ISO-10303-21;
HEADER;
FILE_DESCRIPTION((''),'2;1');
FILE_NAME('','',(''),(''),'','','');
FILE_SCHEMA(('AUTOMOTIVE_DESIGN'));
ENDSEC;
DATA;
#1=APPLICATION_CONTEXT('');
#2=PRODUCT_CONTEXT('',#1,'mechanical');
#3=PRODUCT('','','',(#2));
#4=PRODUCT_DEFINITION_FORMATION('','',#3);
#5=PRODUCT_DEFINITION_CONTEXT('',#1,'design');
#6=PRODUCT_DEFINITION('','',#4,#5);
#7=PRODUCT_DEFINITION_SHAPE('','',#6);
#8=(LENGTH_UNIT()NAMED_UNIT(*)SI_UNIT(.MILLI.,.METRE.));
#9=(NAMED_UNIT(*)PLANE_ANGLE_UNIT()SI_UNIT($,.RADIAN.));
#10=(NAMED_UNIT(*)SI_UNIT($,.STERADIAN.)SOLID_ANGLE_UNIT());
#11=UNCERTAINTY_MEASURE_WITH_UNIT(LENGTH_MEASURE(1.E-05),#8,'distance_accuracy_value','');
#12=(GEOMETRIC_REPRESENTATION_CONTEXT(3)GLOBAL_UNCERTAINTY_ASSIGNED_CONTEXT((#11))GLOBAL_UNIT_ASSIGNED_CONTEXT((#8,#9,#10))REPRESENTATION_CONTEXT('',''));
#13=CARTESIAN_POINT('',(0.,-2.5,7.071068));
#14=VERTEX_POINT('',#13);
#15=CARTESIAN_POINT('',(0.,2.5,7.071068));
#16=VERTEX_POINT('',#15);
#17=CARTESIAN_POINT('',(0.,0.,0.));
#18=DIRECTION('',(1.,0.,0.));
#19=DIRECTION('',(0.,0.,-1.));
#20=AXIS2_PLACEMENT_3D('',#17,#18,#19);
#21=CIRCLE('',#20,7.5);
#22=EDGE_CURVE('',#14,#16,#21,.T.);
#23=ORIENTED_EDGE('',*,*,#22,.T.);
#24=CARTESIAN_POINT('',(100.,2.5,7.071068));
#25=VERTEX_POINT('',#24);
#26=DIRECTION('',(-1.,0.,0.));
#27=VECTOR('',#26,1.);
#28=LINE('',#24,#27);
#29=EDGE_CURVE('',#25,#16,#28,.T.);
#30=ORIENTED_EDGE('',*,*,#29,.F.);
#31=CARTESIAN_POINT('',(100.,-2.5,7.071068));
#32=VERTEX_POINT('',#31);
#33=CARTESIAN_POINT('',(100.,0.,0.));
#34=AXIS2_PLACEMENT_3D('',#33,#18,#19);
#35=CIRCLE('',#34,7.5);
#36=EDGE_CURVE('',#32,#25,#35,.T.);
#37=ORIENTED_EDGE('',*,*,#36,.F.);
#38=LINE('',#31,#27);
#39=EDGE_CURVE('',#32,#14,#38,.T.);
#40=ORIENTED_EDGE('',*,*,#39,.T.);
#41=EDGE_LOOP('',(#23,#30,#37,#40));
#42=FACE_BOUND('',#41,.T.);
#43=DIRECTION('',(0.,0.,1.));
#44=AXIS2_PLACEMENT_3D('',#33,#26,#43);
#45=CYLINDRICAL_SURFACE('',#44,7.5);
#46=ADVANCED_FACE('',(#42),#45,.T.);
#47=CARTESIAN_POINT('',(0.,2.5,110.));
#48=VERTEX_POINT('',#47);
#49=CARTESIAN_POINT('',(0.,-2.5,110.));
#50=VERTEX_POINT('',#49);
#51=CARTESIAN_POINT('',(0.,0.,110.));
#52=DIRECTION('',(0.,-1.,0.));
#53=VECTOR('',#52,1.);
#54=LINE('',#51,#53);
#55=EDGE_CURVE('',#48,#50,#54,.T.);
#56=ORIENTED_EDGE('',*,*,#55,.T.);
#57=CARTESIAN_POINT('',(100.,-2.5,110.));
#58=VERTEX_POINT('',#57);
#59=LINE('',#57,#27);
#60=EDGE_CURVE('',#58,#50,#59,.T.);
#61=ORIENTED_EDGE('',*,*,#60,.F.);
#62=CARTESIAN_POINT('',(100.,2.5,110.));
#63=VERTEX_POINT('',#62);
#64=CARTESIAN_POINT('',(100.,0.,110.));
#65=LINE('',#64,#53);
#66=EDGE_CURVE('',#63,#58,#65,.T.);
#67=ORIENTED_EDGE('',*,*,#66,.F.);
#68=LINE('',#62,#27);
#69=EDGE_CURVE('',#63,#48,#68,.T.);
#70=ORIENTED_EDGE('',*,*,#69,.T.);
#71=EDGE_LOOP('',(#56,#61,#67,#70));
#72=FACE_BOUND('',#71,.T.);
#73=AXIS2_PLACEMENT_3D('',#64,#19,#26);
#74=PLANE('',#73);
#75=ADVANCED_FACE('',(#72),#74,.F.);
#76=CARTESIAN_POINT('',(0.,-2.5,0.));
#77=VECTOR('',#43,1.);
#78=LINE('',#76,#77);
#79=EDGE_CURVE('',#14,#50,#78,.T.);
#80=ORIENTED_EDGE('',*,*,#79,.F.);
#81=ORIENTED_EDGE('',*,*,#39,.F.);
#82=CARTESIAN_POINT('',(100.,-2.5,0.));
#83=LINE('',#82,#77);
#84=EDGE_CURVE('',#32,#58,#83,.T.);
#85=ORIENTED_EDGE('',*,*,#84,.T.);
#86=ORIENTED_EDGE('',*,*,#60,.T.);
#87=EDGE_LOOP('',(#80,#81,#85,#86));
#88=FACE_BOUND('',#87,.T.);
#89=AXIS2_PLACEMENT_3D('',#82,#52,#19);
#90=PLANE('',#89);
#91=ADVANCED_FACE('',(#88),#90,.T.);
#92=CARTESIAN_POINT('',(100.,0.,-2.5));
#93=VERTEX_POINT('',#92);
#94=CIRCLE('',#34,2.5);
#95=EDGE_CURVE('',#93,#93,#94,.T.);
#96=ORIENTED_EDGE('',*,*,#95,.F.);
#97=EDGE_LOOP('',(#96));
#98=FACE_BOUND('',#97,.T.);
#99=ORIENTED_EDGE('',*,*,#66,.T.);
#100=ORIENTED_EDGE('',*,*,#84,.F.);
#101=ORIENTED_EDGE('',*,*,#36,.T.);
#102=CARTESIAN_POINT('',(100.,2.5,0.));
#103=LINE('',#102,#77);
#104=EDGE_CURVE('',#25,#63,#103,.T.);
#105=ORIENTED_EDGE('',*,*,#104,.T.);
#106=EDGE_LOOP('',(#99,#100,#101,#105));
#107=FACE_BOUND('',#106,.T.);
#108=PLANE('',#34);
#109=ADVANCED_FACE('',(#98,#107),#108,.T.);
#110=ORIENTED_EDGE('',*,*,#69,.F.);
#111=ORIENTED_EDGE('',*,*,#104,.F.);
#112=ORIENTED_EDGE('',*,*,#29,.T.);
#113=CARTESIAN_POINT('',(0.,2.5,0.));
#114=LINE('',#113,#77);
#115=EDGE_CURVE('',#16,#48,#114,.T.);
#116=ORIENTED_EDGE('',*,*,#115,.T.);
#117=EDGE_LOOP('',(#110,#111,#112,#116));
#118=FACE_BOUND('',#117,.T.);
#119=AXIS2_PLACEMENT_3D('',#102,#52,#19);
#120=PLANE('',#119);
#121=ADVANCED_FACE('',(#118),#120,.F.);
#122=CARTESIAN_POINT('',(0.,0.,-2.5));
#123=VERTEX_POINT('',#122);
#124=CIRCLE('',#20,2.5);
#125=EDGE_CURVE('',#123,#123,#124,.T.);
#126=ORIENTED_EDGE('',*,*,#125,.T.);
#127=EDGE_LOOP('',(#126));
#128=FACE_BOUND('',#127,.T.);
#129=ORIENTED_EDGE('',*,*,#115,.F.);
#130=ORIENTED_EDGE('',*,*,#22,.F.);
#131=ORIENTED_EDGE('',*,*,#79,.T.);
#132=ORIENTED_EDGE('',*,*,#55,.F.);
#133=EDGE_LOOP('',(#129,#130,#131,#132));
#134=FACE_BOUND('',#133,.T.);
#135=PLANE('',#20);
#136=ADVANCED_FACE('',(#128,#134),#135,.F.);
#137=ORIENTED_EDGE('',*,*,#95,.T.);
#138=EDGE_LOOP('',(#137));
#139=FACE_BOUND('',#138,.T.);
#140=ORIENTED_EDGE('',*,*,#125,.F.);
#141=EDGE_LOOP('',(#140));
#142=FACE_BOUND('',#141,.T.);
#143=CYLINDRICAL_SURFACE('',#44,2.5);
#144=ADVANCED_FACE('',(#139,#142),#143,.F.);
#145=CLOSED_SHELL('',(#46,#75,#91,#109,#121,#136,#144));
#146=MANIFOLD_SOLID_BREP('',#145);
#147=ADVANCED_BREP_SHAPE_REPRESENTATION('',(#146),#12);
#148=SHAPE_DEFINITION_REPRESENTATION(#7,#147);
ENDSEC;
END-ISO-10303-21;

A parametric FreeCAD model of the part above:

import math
import FreeCAD as App
import Part
import Sketcher
from FreeCAD import Vector

doc = App.newDocument("Part")
body = doc.addObject("PartDesign::Body", "Body")

sketch1 = body.newObject("Sketcher::SketchObject", "Sketch")
sketch1.AttachmentSupport = (doc.getObject("YZ_Plane"), [""])
sketch1.MapMode = "FlatFace"
sketch1.addGeometry([
    Part.ArcOfCircle(Part.Circle(Vector(0, 0, 0), Vector(0, 0, 1), 7.5), math.radians(109), math.radians(270)),
    Part.ArcOfCircle(Part.Circle(Vector(0, 0, 0), Vector(0, 0, 1), 7.5), math.radians(-90), math.radians(71)),
    Part.LineSegment(Vector(2.5, 7.1, 0), Vector(2.5, 110, 0)),
    Part.LineSegment(Vector(2.5, 110, 0), Vector(-2.5, 110, 0)),
    Part.LineSegment(Vector(-2.5, 110, 0), Vector(-2.5, 7.1, 0)),
    Part.ArcOfCircle(Part.Circle(Vector(0, 0, 0), Vector(0, 0, 1), 2.5), math.radians(0), math.radians(180)),
    Part.ArcOfCircle(Part.Circle(Vector(0, 0, 0), Vector(0, 0, 1), 2.5), math.radians(-90), math.radians(0)),
    Part.ArcOfCircle(Part.Circle(Vector(0, 0, 0), Vector(0, 0, 1), 2.5), math.radians(180), math.radians(270)),
], False)
sketch1.addConstraint([
    Sketcher.Constraint("Tangent", 0, 2, 1, 1),
    Sketcher.Constraint("Coincident", 1, 2, 2, 1),
    Sketcher.Constraint("Coincident", 2, 2, 3, 1),
    Sketcher.Constraint("Coincident", 3, 2, 4, 1),
    Sketcher.Constraint("Coincident", 4, 2, 0, 1),
    Sketcher.Constraint("Tangent", 5, 1, 6, 2),
    Sketcher.Constraint("Tangent", 6, 1, 7, 2),
    Sketcher.Constraint("Tangent", 7, 1, 5, 2),
    Sketcher.Constraint("Vertical", 2),
    Sketcher.Constraint("Horizontal", 3),
    Sketcher.Constraint("Vertical", 4),
    Sketcher.Constraint("Coincident", 0, 3, -1, 1),
    Sketcher.Constraint("Coincident", 5, 3, -1, 1),
    Sketcher.Constraint("Equal", 0, 1),
    Sketcher.Constraint("PointOnObject", 0, 2, -2),
    Sketcher.Constraint("PointOnObject", 5, 1, -1),
    Sketcher.Constraint("PointOnObject", 6, 1, -2),
    Sketcher.Constraint("PointOnObject", 7, 1, -1),
    Sketcher.Constraint("Horizontal", 1, 2, 4, 2),
    Sketcher.Constraint("Vertical", 2, 2, 5, 1),
    Sketcher.Constraint("Radius", 0, 7.5),
    Sketcher.Constraint("Radius", 5, 2.5),
    Sketcher.Constraint("DistanceY", -1, 1, 2, 2, 110.0),
])
pad1 = body.newObject("PartDesign::Pad", "Pad")
pad1.Profile = sketch1
pad1.Length = 100

doc.recompute()
